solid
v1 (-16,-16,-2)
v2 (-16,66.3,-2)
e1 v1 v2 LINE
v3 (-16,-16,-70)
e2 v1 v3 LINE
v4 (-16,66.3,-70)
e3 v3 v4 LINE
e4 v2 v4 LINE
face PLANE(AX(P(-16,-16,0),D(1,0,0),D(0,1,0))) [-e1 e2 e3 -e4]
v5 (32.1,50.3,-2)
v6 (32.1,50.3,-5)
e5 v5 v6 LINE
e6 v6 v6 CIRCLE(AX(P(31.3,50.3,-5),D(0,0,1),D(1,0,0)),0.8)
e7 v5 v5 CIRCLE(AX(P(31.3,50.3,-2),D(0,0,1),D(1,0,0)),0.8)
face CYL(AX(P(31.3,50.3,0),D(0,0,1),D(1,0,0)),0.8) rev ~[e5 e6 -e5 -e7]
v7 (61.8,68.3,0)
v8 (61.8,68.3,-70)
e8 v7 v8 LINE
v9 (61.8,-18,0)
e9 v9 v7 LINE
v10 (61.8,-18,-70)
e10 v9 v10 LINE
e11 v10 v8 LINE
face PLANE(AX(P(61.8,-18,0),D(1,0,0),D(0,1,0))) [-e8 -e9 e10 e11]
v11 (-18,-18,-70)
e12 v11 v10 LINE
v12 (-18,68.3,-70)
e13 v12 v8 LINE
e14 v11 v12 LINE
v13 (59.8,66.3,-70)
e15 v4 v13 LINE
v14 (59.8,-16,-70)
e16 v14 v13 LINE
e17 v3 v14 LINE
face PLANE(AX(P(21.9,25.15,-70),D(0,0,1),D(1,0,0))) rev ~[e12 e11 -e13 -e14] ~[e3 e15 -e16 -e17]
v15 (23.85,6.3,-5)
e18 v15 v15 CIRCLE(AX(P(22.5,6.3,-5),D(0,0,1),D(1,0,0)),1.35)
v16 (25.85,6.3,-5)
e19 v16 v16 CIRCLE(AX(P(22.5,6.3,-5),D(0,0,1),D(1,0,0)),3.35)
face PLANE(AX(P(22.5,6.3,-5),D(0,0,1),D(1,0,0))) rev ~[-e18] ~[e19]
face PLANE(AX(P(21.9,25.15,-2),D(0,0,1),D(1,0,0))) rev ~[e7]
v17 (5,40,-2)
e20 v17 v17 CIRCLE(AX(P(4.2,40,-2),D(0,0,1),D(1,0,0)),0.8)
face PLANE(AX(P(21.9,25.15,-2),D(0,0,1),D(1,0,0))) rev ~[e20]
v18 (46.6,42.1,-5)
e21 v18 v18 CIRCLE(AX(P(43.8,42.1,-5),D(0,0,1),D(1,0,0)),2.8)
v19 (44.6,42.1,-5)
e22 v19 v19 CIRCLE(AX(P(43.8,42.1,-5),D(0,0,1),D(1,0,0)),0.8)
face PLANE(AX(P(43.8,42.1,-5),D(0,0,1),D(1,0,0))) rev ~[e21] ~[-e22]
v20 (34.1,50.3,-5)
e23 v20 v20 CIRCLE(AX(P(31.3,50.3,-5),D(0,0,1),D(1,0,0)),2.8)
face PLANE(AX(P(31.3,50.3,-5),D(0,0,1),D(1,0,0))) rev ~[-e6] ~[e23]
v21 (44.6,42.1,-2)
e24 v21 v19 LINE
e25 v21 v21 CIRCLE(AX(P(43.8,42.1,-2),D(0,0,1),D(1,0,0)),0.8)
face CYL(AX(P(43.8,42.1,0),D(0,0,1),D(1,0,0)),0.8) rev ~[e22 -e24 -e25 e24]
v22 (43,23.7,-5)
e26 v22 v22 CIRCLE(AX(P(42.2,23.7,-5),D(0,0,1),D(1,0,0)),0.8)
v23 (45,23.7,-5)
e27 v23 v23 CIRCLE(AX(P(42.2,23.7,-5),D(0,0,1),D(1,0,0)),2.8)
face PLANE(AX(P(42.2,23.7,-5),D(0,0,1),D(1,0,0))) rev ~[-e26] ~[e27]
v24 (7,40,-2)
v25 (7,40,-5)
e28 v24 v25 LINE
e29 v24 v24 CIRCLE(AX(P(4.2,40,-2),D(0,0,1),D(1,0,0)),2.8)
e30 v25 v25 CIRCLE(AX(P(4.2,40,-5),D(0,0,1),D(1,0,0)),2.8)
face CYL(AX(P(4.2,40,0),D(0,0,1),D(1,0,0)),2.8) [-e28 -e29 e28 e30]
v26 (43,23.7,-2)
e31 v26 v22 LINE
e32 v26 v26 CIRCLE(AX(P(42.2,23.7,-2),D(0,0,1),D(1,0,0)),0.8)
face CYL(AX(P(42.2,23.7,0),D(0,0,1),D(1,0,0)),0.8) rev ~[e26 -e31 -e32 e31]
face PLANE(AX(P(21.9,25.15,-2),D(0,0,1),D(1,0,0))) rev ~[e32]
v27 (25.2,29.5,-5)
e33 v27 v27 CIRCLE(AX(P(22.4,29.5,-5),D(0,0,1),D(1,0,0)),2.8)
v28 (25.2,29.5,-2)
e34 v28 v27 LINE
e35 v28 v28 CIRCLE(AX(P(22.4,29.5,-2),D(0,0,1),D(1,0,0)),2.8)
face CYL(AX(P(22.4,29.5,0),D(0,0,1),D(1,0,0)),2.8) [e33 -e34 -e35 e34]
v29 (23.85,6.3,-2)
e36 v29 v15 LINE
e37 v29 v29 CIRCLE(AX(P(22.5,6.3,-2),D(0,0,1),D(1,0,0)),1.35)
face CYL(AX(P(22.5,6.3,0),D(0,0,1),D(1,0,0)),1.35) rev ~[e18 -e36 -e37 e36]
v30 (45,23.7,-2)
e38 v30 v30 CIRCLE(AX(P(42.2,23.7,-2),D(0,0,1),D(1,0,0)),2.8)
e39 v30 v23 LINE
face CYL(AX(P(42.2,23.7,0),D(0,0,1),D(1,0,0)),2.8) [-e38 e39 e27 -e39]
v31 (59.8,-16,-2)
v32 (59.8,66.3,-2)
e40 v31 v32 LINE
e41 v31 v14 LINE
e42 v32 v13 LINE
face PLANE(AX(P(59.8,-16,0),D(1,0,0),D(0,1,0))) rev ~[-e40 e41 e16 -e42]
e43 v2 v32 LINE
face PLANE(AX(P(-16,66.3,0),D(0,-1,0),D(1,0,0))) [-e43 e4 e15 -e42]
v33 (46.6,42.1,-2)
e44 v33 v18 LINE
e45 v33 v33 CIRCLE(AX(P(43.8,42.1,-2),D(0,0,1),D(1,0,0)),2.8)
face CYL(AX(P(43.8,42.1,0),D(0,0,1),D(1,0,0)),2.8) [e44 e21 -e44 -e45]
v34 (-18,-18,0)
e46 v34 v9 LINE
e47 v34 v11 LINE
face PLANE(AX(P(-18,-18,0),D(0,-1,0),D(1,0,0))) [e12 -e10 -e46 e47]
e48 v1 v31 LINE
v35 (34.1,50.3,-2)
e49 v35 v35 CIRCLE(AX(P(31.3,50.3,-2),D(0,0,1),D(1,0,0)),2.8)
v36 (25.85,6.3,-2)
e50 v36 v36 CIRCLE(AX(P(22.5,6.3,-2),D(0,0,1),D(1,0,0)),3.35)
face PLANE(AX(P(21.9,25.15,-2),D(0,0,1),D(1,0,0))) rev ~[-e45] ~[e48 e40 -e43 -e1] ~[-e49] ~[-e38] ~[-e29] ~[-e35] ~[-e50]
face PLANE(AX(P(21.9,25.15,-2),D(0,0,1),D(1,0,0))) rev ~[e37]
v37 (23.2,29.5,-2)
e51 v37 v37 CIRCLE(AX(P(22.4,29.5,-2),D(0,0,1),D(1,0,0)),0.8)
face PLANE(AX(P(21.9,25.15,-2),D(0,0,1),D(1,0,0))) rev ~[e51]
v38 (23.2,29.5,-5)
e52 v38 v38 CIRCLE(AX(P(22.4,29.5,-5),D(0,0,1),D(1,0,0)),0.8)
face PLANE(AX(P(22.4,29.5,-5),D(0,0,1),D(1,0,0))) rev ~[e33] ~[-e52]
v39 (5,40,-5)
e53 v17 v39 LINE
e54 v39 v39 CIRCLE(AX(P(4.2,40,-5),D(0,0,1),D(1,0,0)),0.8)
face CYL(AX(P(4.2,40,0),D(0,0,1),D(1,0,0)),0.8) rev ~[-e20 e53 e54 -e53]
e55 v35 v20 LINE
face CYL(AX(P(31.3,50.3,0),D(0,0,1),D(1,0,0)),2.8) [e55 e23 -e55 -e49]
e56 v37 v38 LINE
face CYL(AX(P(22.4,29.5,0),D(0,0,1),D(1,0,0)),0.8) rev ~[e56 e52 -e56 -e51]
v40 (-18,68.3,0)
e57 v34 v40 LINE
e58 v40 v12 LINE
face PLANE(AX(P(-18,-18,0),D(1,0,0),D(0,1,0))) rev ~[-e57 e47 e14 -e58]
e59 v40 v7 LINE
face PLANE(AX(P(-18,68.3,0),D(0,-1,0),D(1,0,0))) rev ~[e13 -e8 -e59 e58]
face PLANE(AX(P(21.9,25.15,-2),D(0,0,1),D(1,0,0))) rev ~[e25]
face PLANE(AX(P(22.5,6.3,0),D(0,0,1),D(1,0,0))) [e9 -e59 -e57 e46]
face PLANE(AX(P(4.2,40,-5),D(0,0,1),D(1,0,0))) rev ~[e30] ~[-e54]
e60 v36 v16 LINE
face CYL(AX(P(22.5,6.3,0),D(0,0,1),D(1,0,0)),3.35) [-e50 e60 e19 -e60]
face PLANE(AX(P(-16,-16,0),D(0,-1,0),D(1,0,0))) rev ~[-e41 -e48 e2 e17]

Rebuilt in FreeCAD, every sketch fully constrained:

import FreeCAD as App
import Part
import Sketcher
Q = App.Units.Quantity


def add_polygon(sketch, points):
    """Adds a closed chain of lines whose ends are joined by coincident constraints."""
    first, n = sketch.GeometryCount, len(points)
    for a, b in zip(points, points[1:] + points[:1]):
        sketch.addGeometry(Part.LineSegment(App.Vector(*a, 0), App.Vector(*b, 0)), False)
    for i in range(n):
        sketch.addConstraint(Sketcher.Constraint("Coincident", first + i, 2, first + (i + 1) % n, 1))

doc = App.newDocument("Part")
body = doc.addObject("PartDesign::Body", "Body")

# Sketch on XY plane
sketch1 = doc.addObject("Sketcher::SketchObject", "Sketch")
body.addObject(sketch1)
sketch1.AttachmentSupport = (doc.XY_Plane, [""])
sketch1.MapMode = "FlatFace"
add_polygon(sketch1, [(-18, 68), (-18, -18), (62, -18), (62, 68)])  # lines 0-3
add_polygon(sketch1, [(60, -16), (-16, -16), (-16, 66), (60, 66)])  # lines 4-7
sketch1.addConstraint([
    Sketcher.Constraint("Vertical", 0),
    Sketcher.Constraint("Horizontal", 1),
    Sketcher.Constraint("Vertical", 2),
    Sketcher.Constraint("Horizontal", 3),
    Sketcher.Constraint("Horizontal", 4),
    Sketcher.Constraint("Vertical", 5),
    Sketcher.Constraint("Horizontal", 6),
    Sketcher.Constraint("Vertical", 7),
    Sketcher.Constraint("DistanceX", 1, 1, 1, 2, Q("79.8 mm")),
    Sketcher.Constraint("DistanceX", 4, 2, 4, 1, Q("75.8 mm")),
    Sketcher.Constraint("DistanceY", 0, 2, 0, 1, Q("86.3 mm")),
    Sketcher.Constraint("DistanceY", 5, 1, 5, 2, Q("82.3 mm")),
    Sketcher.Constraint("DistanceX", 0, 2, -1, 1, Q("18 mm")),
    Sketcher.Constraint("DistanceY", 0, 2, -1, 1, Q("18 mm")),
    Sketcher.Constraint("DistanceX", 4, 2, -1, 1, Q("16 mm")),
    Sketcher.Constraint("DistanceY", 4, 2, -1, 1, Q("16 mm")),
])
pad1 = doc.addObject("PartDesign::Pad", "Pad")
body.addObject(pad1)
pad1.Profile = sketch1
pad1.Length = 70
pad1.Reversed = True

# Sketch on XY plane
sketch2 = doc.addObject("Sketcher::SketchObject", "Sketch001")
body.addObject(sketch2)
sketch2.AttachmentSupport = (doc.XY_Plane, [""])
sketch2.MapMode = "FlatFace"
add_polygon(sketch2, [(-16, 66), (-16, -16), (60, -16), (60, 66)])  # lines 0-3
sketch2.addConstraint([
    Sketcher.Constraint("Vertical", 0),
    Sketcher.Constraint("Horizontal", 1),
    Sketcher.Constraint("Vertical", 2),
    Sketcher.Constraint("Horizontal", 3),
    Sketcher.Constraint("DistanceX", 1, 1, 1, 2, Q("75.8 mm")),
    Sketcher.Constraint("DistanceY", 0, 2, 0, 1, Q("82.3 mm")),
    Sketcher.Constraint("DistanceX", 0, 2, -1, 1, Q("16 mm")),
    Sketcher.Constraint("DistanceY", 0, 2, -1, 1, Q("16 mm")),
])
pad2 = doc.addObject("PartDesign::Pad", "Pad001")
body.addObject(pad2)
pad2.Profile = sketch2
pad2.Length = 2
pad2.Reversed = True

# Sketch on XY plane
sketch3 = doc.addObject("Sketcher::SketchObject", "Sketch002")
body.addObject(sketch3)
sketch3.AttachmentSupport = (doc.XY_Plane, [""])
sketch3.MapMode = "FlatFace"
sketch3.addGeometry([
    Part.Circle(App.Vector(22.5, 6.3, 0), App.Vector(0, 0, 1), 3.4),  # 0
    Part.Circle(App.Vector(22.5, 6.3, 0), App.Vector(0, 0, 1), 1.4),  # 1
    Part.Circle(App.Vector(42.2, 23.7, 0), App.Vector(0, 0, 1), 2.8),  # 2
    Part.Circle(App.Vector(42.2, 23.7, 0), App.Vector(0, 0, 1), 0.8),  # 3
    Part.Circle(App.Vector(22.4, 29.5, 0), App.Vector(0, 0, 1), 2.8),  # 4
    Part.Circle(App.Vector(22.4, 29.5, 0), App.Vector(0, 0, 1), 0.8),  # 5
    Part.Circle(App.Vector(4.2, 40, 0), App.Vector(0, 0, 1), 2.8),  # 6
    Part.Circle(App.Vector(4.2, 40, 0), App.Vector(0, 0, 1), 0.8),  # 7
    Part.Circle(App.Vector(43.8, 42.1, 0), App.Vector(0, 0, 1), 2.8),  # 8
    Part.Circle(App.Vector(43.8, 42.1, 0), App.Vector(0, 0, 1), 0.8),  # 9
    Part.Circle(App.Vector(31.3, 50.3, 0), App.Vector(0, 0, 1), 2.8),  # 10
    Part.Circle(App.Vector(31.3, 50.3, 0), App.Vector(0, 0, 1), 0.8),  # 11
], False)
sketch3.addConstraint([
    Sketcher.Constraint("Coincident", 1, 3, 0, 3),
    Sketcher.Constraint("Coincident", 3, 3, 2, 3),
    Sketcher.Constraint("Coincident", 5, 3, 4, 3),
    Sketcher.Constraint("Coincident", 7, 3, 6, 3),
    Sketcher.Constraint("Coincident", 9, 3, 8, 3),
    Sketcher.Constraint("Coincident", 11, 3, 10, 3),
    Sketcher.Constraint("Equal", 2, 4),
    Sketcher.Constraint("Equal", 3, 5),
    Sketcher.Constraint("Equal", 4, 6),
    Sketcher.Constraint("Equal", 5, 7),
    Sketcher.Constraint("Equal", 6, 8),
    Sketcher.Constraint("Equal", 7, 9),
    Sketcher.Constraint("Equal", 8, 10),
    Sketcher.Constraint("Equal", 9, 11),
    Sketcher.Constraint("Diameter", 0, Q("6.7 mm")),
    Sketcher.Constraint("Diameter", 1, Q("2.7 mm")),
    Sketcher.Constraint("Diameter", 2, Q("5.6 mm")),
    Sketcher.Constraint("Diameter", 3, Q("1.6 mm")),
    Sketcher.Constraint("DistanceY", -1, 1, 6, 3, Q("40 mm")),
    Sketcher.Constraint("DistanceX", 6, 3, 2, 3, Q("38 mm")),
    Sketcher.Constraint("DistanceX", -1, 1, 0, 3, Q("22.5 mm")),
    Sketcher.Constraint("DistanceY", -1, 1, 0, 3, Q("6.3 mm")),
    Sketcher.Constraint("DistanceX", -1, 1, 2, 3, Q("42.2 mm")),
    Sketcher.Constraint("DistanceY", -1, 1, 2, 3, Q("23.7 mm")),
    Sketcher.Constraint("DistanceX", -1, 1, 4, 3, Q("22.4 mm")),
    Sketcher.Constraint("DistanceY", -1, 1, 4, 3, Q("29.5 mm")),
    Sketcher.Constraint("DistanceX", -1, 1, 8, 3, Q("43.8 mm")),
    Sketcher.Constraint("DistanceY", -1, 1, 8, 3, Q("42.1 mm")),
    Sketcher.Constraint("DistanceX", -1, 1, 10, 3, Q("31.3 mm")),
    Sketcher.Constraint("DistanceY", -1, 1, 10, 3, Q("50.3 mm")),
])
pad3 = doc.addObject("PartDesign::Pad", "Pad002")
body.addObject(pad3)
pad3.Profile = sketch3
pad3.Length = 5
pad3.Reversed = True

doc.recompute()
